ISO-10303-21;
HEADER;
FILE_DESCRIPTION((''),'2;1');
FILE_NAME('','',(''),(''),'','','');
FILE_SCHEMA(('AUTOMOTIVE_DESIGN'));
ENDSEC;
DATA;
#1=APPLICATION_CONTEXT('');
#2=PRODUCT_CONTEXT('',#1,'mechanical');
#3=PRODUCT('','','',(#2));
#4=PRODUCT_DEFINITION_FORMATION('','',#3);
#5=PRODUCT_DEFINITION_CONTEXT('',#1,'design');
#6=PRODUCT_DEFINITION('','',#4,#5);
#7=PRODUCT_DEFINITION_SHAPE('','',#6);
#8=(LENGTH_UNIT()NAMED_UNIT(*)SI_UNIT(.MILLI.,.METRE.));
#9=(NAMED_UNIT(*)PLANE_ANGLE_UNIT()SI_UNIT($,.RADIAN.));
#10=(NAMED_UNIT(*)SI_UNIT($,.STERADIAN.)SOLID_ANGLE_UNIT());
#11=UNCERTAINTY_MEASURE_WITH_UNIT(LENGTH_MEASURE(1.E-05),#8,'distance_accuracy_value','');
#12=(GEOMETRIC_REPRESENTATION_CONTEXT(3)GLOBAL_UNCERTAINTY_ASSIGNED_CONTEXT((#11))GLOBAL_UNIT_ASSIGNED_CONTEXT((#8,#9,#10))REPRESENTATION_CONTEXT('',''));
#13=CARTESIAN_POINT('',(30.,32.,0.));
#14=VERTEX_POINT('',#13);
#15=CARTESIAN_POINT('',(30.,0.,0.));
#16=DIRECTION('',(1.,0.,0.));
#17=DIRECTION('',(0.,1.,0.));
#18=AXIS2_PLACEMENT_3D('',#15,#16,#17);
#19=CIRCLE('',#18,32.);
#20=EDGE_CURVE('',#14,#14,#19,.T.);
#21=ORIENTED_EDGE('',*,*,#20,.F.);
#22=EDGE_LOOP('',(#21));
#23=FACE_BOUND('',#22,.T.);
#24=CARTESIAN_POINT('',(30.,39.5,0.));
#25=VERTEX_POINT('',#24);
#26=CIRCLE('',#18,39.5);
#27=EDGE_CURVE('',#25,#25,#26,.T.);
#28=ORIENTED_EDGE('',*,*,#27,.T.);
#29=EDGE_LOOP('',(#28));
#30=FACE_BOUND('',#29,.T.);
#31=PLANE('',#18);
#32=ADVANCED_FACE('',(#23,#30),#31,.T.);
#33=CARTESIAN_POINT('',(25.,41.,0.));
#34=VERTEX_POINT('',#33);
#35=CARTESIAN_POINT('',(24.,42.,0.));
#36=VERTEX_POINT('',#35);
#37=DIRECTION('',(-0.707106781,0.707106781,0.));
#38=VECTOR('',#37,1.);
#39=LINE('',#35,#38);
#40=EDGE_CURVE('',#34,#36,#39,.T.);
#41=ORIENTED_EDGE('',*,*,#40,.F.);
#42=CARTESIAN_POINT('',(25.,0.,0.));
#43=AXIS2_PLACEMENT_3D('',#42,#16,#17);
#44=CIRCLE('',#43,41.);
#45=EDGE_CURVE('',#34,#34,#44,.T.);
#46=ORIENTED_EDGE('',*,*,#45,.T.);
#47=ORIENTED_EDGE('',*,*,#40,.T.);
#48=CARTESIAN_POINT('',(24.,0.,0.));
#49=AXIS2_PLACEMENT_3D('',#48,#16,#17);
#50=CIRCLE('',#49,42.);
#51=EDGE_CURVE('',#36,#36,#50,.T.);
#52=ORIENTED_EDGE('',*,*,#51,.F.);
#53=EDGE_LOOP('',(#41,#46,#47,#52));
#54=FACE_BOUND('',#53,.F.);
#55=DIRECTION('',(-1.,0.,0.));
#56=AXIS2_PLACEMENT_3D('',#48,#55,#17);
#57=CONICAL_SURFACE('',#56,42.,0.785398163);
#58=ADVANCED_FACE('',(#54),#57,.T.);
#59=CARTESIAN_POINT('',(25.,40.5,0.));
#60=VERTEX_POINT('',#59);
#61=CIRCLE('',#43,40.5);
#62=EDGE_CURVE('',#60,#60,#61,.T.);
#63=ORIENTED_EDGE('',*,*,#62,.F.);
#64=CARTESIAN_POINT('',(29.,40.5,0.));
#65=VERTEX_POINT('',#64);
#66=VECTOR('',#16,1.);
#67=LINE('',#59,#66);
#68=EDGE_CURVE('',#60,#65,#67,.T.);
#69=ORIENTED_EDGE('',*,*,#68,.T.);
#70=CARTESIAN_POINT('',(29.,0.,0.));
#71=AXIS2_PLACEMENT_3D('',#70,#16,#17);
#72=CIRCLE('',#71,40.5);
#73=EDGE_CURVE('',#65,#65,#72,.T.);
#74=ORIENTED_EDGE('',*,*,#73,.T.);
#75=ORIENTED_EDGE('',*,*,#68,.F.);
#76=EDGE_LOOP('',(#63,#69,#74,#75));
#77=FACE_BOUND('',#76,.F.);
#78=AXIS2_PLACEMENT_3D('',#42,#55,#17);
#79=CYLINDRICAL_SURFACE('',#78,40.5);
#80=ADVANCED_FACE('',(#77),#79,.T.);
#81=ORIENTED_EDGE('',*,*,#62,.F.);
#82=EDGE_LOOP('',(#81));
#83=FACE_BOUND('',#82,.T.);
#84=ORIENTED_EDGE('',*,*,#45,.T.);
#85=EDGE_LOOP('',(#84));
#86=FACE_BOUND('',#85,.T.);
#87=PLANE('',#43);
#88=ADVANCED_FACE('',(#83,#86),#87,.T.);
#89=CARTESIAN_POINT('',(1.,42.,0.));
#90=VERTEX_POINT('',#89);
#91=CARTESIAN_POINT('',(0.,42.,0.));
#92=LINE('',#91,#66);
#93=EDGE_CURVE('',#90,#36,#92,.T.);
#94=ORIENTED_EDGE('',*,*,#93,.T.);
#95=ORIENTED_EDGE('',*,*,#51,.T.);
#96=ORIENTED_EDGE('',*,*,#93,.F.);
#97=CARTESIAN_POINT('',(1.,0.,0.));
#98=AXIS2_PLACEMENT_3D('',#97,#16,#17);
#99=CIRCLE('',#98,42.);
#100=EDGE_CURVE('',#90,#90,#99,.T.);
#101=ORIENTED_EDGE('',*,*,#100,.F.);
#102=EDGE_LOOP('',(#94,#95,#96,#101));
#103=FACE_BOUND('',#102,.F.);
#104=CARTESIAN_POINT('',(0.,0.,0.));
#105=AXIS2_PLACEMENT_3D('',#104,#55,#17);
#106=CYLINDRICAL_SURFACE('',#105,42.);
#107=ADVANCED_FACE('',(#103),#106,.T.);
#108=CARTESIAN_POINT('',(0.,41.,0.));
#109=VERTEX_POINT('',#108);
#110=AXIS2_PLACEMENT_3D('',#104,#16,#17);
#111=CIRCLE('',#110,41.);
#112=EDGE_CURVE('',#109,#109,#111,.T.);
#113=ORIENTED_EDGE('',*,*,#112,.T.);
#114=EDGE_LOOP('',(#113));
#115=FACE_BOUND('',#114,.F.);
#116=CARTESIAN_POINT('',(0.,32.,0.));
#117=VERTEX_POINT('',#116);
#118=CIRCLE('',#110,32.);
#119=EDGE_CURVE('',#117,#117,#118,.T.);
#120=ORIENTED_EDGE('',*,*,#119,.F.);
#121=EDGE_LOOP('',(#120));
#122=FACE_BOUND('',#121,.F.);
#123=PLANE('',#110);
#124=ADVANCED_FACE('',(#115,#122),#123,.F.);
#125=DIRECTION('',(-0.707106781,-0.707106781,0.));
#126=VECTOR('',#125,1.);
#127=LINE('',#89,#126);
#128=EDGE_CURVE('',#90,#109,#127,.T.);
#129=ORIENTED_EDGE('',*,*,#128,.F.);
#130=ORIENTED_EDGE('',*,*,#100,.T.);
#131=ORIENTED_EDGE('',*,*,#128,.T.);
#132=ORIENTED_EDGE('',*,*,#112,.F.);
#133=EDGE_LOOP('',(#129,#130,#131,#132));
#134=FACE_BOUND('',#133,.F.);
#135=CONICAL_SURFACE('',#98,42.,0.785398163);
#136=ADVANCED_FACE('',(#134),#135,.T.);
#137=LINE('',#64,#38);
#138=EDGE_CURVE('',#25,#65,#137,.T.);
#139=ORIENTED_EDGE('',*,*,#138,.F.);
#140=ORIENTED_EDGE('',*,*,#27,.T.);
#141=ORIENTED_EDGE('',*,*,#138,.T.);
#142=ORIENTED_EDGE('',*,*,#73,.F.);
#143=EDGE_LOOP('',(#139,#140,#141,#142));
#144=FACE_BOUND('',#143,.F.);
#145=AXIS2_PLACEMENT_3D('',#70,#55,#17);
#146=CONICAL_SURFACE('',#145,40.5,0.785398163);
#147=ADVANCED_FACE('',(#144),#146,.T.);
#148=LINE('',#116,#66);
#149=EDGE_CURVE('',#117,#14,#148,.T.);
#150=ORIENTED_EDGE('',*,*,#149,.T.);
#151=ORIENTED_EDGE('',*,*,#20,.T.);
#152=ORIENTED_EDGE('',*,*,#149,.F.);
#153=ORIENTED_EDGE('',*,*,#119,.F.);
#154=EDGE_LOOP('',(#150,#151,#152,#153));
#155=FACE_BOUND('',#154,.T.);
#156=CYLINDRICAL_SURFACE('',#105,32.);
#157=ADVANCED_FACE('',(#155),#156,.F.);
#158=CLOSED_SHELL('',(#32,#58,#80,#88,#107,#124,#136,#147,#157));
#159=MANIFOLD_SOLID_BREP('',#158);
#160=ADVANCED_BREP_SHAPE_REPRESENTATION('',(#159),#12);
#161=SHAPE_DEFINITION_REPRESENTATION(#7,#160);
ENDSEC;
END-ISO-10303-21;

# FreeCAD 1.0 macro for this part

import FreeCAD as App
import Part
import Sketcher

V = App.Vector
Q = App.Units.Quantity


def edges_at(feature, points):
    """Names of the edges that pass closest to the given points."""
    edges = feature.Shape.Edges
    near = lambda p: min(range(len(edges)), key=lambda i: edges[i].distToShape(Part.Vertex(*p))[0])
    return sorted({f"Edge{near(p) + 1}" for p in points})

doc = App.newDocument("Part")
body = doc.addObject("PartDesign::Body", "Body")

# Sketch on YZ plane
sketch1 = body.newObject("Sketcher::SketchObject", "Sketch")
sketch1.AttachmentSupport = (doc.getObject("YZ_Plane"), [""])
sketch1.MapMode = "FlatFace"
sketch1.addGeometry([
    Part.Circle(V(0, 0, 0), V(0, 0, 1), 42),
    Part.Circle(V(0, 0, 0), V(0, 0, 1), 32),
], False)
sketch1.addConstraint([
    Sketcher.Constraint("Coincident", 0, 3, -1, 1),
    Sketcher.Constraint("Coincident", 1, 3, -1, 1),
    Sketcher.Constraint("Diameter", 0, Q("84 mm")),
    Sketcher.Constraint("Diameter", 1, Q("64 mm")),
])
pad1 = body.newObject("PartDesign::Pad", "Pad")
pad1.Profile = sketch1
pad1.Length = 25

# Sketch on YZ plane
sketch2 = body.newObject("Sketcher::SketchObject", "Sketch001")
sketch2.AttachmentSupport = (doc.getObject("YZ_Plane"), [""])
sketch2.MapMode = "FlatFace"
sketch2.AttachmentOffset = App.Placement(V(0, 0, 25), App.Rotation())
sketch2.addGeometry([
    Part.Circle(V(0, 0, 0), V(0, 0, 1), 40.5),
    Part.Circle(V(0, 0, 0), V(0, 0, 1), 32),
], False)
sketch2.addConstraint([
    Sketcher.Constraint("Coincident", 0, 3, -1, 1),
    Sketcher.Constraint("Coincident", 1, 3, -1, 1),
    Sketcher.Constraint("Diameter", 0, Q("81 mm")),
    Sketcher.Constraint("Diameter", 1, Q("64 mm")),
])
pad2 = body.newObject("PartDesign::Pad", "Pad001")
pad2.Profile = sketch2
pad2.Length = 5
doc.recompute()

chamfer = body.newObject("PartDesign::Chamfer", "Chamfer")
chamfer.Base = (pad2, edges_at(pad2, [(0, -39.158, -15.188), (25, -39.158, -15.188), (30, -37.759, -14.645)]))
chamfer.Size = 1

doc.recompute()
